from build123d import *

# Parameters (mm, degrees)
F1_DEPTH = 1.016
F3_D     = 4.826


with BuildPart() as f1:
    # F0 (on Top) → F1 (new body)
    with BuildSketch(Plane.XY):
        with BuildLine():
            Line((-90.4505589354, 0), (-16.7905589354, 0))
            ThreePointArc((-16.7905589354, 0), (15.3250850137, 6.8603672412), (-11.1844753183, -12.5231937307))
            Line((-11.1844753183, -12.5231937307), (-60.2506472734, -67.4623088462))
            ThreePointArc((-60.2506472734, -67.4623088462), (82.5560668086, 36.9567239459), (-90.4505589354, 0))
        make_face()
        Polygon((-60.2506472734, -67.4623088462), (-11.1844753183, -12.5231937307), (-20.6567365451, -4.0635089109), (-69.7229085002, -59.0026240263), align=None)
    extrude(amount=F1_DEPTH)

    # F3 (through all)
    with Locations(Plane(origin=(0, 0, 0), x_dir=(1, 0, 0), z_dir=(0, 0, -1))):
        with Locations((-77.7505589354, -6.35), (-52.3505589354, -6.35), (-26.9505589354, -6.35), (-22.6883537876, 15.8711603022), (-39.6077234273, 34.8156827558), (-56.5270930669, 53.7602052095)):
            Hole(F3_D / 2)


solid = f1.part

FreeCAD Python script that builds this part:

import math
import FreeCAD as App
import Part
import Sketcher
from FreeCAD import Vector
Q = App.Units.Quantity

doc = App.newDocument("Part")
body = doc.addObject("PartDesign::Body", "Body")

# Sketch on XY plane
sketch1 = doc.addObject("Sketcher::SketchObject", "Sketch")
body.addObject(sketch1)
sketch1.AttachmentSupport = (doc.XY_Plane, [""])
sketch1.MapMode = "FlatFace"
sketch1.addGeometry(Part.LineSegment(Vector(-90.450559, 0, 0), Vector(-16.790559, 0, 0)), False)
sketch1.addGeometry(Part.ArcOfCircle(Part.Circle(Vector(0, 0, 0), Vector(0, 0, 1), 16.790559), math.radians(-131.768069), math.radians(180)), False)
sketch1.addGeometry(Part.LineSegment(Vector(-11.184475, -12.523194, 0), Vector(-20.656737, -4.063509, 0)), False)
sketch1.addGeometry(Part.LineSegment(Vector(-20.656737, -4.063509, 0), Vector(-69.722909, -59.002624, 0)), False)
sketch1.addGeometry(Part.LineSegment(Vector(-69.722909, -59.002624, 0), Vector(-60.250647, -67.462309, 0)), False)
sketch1.addGeometry(Part.ArcOfCircle(Part.Circle(Vector(0, 0, 0), Vector(0, 0, 1), 90.450559), math.radians(-131.768069), math.radians(180)), False)
sketch1.addConstraint(Sketcher.Constraint("Coincident", 0, 2, 1, 2))
sketch1.addConstraint(Sketcher.Constraint("Tangent", 1, 1, 2, 1))
sketch1.addConstraint(Sketcher.Constraint("Coincident", 2, 2, 3, 1))
sketch1.addConstraint(Sketcher.Constraint("Coincident", 3, 2, 4, 1))
sketch1.addConstraint(Sketcher.Constraint("Tangent", 4, 2, 5, 1))
sketch1.addConstraint(Sketcher.Constraint("Coincident", 5, 2, 0, 1))
sketch1.addConstraint(Sketcher.Constraint("Horizontal", 0))
sketch1.addConstraint(Sketcher.Constraint("Coincident", 1, 3, -1, 1))
sketch1.addConstraint(Sketcher.Constraint("Coincident", 5, 3, -1, 1))
sketch1.addConstraint(Sketcher.Constraint("PointOnObject", 0, 2, -1))
sketch1.addConstraint(Sketcher.Constraint("Perpendicular", 2, 3))
sketch1.addConstraint(Sketcher.Constraint("Perpendicular", 3, 4))
sketch1.addConstraint(Sketcher.Constraint("DistanceX", 0, 1, 0, 2, Q("2.9 in")))
sketch1.addConstraint(Sketcher.Constraint("Distance", 2, Q("0.5 in")))
sketch1.addConstraint(Sketcher.Constraint("Radius", 1, Q("16.790559 mm")))
sketch1.addConstraint(Sketcher.Constraint("DistanceY", 4, 2, 2, 2, Q("63.3988 mm")))
pad1 = doc.addObject("PartDesign::Pad", "Pad")
body.addObject(pad1)
pad1.Profile = sketch1
pad1.Length = Q("0.04 in")

# Sketch on XY plane
sketch2 = doc.addObject("Sketcher::SketchObject", "Sketch001")
body.addObject(sketch2)
sketch2.AttachmentSupport = (doc.XY_Plane, [""])
sketch2.MapMode = "FlatFace"
sketch2.addGeometry(Part.Circle(Vector(-77.750559, 6.35, 0), Vector(0, 0, 1), 2.413), False)
sketch2.addGeometry(Part.Circle(Vector(-52.350559, 6.35, 0), Vector(0, 0, 1), 2.413), False)
sketch2.addGeometry(Part.Circle(Vector(-26.950559, 6.35, 0), Vector(0, 0, 1), 2.413), False)
sketch2.addGeometry(Part.Circle(Vector(-22.688354, -15.87116, 0), Vector(0, 0, 1), 2.413), False)
sketch2.addGeometry(Part.Circle(Vector(-39.607723, -34.815683, 0), Vector(0, 0, 1), 2.413), False)
sketch2.addGeometry(Part.Circle(Vector(-56.527093, -53.760205, 0), Vector(0, 0, 1), 2.413), False)
sketch2.addConstraint(Sketcher.Constraint("Equal", 0, 1))
sketch2.addConstraint(Sketcher.Constraint("Equal", 1, 2))
sketch2.addConstraint(Sketcher.Constraint("Equal", 2, 3))
sketch2.addConstraint(Sketcher.Constraint("Equal", 3, 4))
sketch2.addConstraint(Sketcher.Constraint("Equal", 4, 5))
sketch2.addConstraint(Sketcher.Constraint("Horizontal", 0, 3, 1, 3))
sketch2.addConstraint(Sketcher.Constraint("Horizontal", 1, 3, 2, 3))
sketch2.addConstraint(Sketcher.Constraint("Diameter", 0, Q("0.19 in")))
sketch2.addConstraint(Sketcher.Constraint("DistanceX", 0, 3, 1, 3, Q("1 in")))
sketch2.addConstraint(Sketcher.Constraint("DistanceX", 1, 3, 2, 3, Q("1 in")))
sketch2.addConstraint(Sketcher.Constraint("DistanceY", -1, 1, 0, 3, Q("0.25 in")))
sketch2.addConstraint(Sketcher.Constraint("DistanceX", 0, 3, -1, 1, Q("77.750559 mm")))
sketch2.addConstraint(Sketcher.Constraint("DistanceY", 3, 3, -1, 1, Q("15.87116 mm")))
sketch2.addConstraint(Sketcher.Constraint("DistanceX", 4, 3, 3, 3, Q("16.91937 mm")))
sketch2.addConstraint(Sketcher.Constraint("DistanceX", 5, 3, 4, 3, Q("16.91937 mm")))
sketch2.addConstraint(Sketcher.Constraint("DistanceX", 3, 3, -1, 1, Q("22.688354 mm")))
sketch2.addConstraint(Sketcher.Constraint("DistanceY", 4, 3, -1, 1, Q("34.815683 mm")))
sketch2.addConstraint(Sketcher.Constraint("DistanceY", 5, 3, -1, 1, Q("53.760205 mm")))
doc.recompute()
hole = doc.addObject("PartDesign::Hole", "Hole")
body.addObject(hole)
hole.Profile = sketch2
hole.ThreadType = "None"
hole.Diameter = Q("0.19 in")
hole.DepthType = "ThroughAll"
hole.Reversed = True

doc.recompute()
